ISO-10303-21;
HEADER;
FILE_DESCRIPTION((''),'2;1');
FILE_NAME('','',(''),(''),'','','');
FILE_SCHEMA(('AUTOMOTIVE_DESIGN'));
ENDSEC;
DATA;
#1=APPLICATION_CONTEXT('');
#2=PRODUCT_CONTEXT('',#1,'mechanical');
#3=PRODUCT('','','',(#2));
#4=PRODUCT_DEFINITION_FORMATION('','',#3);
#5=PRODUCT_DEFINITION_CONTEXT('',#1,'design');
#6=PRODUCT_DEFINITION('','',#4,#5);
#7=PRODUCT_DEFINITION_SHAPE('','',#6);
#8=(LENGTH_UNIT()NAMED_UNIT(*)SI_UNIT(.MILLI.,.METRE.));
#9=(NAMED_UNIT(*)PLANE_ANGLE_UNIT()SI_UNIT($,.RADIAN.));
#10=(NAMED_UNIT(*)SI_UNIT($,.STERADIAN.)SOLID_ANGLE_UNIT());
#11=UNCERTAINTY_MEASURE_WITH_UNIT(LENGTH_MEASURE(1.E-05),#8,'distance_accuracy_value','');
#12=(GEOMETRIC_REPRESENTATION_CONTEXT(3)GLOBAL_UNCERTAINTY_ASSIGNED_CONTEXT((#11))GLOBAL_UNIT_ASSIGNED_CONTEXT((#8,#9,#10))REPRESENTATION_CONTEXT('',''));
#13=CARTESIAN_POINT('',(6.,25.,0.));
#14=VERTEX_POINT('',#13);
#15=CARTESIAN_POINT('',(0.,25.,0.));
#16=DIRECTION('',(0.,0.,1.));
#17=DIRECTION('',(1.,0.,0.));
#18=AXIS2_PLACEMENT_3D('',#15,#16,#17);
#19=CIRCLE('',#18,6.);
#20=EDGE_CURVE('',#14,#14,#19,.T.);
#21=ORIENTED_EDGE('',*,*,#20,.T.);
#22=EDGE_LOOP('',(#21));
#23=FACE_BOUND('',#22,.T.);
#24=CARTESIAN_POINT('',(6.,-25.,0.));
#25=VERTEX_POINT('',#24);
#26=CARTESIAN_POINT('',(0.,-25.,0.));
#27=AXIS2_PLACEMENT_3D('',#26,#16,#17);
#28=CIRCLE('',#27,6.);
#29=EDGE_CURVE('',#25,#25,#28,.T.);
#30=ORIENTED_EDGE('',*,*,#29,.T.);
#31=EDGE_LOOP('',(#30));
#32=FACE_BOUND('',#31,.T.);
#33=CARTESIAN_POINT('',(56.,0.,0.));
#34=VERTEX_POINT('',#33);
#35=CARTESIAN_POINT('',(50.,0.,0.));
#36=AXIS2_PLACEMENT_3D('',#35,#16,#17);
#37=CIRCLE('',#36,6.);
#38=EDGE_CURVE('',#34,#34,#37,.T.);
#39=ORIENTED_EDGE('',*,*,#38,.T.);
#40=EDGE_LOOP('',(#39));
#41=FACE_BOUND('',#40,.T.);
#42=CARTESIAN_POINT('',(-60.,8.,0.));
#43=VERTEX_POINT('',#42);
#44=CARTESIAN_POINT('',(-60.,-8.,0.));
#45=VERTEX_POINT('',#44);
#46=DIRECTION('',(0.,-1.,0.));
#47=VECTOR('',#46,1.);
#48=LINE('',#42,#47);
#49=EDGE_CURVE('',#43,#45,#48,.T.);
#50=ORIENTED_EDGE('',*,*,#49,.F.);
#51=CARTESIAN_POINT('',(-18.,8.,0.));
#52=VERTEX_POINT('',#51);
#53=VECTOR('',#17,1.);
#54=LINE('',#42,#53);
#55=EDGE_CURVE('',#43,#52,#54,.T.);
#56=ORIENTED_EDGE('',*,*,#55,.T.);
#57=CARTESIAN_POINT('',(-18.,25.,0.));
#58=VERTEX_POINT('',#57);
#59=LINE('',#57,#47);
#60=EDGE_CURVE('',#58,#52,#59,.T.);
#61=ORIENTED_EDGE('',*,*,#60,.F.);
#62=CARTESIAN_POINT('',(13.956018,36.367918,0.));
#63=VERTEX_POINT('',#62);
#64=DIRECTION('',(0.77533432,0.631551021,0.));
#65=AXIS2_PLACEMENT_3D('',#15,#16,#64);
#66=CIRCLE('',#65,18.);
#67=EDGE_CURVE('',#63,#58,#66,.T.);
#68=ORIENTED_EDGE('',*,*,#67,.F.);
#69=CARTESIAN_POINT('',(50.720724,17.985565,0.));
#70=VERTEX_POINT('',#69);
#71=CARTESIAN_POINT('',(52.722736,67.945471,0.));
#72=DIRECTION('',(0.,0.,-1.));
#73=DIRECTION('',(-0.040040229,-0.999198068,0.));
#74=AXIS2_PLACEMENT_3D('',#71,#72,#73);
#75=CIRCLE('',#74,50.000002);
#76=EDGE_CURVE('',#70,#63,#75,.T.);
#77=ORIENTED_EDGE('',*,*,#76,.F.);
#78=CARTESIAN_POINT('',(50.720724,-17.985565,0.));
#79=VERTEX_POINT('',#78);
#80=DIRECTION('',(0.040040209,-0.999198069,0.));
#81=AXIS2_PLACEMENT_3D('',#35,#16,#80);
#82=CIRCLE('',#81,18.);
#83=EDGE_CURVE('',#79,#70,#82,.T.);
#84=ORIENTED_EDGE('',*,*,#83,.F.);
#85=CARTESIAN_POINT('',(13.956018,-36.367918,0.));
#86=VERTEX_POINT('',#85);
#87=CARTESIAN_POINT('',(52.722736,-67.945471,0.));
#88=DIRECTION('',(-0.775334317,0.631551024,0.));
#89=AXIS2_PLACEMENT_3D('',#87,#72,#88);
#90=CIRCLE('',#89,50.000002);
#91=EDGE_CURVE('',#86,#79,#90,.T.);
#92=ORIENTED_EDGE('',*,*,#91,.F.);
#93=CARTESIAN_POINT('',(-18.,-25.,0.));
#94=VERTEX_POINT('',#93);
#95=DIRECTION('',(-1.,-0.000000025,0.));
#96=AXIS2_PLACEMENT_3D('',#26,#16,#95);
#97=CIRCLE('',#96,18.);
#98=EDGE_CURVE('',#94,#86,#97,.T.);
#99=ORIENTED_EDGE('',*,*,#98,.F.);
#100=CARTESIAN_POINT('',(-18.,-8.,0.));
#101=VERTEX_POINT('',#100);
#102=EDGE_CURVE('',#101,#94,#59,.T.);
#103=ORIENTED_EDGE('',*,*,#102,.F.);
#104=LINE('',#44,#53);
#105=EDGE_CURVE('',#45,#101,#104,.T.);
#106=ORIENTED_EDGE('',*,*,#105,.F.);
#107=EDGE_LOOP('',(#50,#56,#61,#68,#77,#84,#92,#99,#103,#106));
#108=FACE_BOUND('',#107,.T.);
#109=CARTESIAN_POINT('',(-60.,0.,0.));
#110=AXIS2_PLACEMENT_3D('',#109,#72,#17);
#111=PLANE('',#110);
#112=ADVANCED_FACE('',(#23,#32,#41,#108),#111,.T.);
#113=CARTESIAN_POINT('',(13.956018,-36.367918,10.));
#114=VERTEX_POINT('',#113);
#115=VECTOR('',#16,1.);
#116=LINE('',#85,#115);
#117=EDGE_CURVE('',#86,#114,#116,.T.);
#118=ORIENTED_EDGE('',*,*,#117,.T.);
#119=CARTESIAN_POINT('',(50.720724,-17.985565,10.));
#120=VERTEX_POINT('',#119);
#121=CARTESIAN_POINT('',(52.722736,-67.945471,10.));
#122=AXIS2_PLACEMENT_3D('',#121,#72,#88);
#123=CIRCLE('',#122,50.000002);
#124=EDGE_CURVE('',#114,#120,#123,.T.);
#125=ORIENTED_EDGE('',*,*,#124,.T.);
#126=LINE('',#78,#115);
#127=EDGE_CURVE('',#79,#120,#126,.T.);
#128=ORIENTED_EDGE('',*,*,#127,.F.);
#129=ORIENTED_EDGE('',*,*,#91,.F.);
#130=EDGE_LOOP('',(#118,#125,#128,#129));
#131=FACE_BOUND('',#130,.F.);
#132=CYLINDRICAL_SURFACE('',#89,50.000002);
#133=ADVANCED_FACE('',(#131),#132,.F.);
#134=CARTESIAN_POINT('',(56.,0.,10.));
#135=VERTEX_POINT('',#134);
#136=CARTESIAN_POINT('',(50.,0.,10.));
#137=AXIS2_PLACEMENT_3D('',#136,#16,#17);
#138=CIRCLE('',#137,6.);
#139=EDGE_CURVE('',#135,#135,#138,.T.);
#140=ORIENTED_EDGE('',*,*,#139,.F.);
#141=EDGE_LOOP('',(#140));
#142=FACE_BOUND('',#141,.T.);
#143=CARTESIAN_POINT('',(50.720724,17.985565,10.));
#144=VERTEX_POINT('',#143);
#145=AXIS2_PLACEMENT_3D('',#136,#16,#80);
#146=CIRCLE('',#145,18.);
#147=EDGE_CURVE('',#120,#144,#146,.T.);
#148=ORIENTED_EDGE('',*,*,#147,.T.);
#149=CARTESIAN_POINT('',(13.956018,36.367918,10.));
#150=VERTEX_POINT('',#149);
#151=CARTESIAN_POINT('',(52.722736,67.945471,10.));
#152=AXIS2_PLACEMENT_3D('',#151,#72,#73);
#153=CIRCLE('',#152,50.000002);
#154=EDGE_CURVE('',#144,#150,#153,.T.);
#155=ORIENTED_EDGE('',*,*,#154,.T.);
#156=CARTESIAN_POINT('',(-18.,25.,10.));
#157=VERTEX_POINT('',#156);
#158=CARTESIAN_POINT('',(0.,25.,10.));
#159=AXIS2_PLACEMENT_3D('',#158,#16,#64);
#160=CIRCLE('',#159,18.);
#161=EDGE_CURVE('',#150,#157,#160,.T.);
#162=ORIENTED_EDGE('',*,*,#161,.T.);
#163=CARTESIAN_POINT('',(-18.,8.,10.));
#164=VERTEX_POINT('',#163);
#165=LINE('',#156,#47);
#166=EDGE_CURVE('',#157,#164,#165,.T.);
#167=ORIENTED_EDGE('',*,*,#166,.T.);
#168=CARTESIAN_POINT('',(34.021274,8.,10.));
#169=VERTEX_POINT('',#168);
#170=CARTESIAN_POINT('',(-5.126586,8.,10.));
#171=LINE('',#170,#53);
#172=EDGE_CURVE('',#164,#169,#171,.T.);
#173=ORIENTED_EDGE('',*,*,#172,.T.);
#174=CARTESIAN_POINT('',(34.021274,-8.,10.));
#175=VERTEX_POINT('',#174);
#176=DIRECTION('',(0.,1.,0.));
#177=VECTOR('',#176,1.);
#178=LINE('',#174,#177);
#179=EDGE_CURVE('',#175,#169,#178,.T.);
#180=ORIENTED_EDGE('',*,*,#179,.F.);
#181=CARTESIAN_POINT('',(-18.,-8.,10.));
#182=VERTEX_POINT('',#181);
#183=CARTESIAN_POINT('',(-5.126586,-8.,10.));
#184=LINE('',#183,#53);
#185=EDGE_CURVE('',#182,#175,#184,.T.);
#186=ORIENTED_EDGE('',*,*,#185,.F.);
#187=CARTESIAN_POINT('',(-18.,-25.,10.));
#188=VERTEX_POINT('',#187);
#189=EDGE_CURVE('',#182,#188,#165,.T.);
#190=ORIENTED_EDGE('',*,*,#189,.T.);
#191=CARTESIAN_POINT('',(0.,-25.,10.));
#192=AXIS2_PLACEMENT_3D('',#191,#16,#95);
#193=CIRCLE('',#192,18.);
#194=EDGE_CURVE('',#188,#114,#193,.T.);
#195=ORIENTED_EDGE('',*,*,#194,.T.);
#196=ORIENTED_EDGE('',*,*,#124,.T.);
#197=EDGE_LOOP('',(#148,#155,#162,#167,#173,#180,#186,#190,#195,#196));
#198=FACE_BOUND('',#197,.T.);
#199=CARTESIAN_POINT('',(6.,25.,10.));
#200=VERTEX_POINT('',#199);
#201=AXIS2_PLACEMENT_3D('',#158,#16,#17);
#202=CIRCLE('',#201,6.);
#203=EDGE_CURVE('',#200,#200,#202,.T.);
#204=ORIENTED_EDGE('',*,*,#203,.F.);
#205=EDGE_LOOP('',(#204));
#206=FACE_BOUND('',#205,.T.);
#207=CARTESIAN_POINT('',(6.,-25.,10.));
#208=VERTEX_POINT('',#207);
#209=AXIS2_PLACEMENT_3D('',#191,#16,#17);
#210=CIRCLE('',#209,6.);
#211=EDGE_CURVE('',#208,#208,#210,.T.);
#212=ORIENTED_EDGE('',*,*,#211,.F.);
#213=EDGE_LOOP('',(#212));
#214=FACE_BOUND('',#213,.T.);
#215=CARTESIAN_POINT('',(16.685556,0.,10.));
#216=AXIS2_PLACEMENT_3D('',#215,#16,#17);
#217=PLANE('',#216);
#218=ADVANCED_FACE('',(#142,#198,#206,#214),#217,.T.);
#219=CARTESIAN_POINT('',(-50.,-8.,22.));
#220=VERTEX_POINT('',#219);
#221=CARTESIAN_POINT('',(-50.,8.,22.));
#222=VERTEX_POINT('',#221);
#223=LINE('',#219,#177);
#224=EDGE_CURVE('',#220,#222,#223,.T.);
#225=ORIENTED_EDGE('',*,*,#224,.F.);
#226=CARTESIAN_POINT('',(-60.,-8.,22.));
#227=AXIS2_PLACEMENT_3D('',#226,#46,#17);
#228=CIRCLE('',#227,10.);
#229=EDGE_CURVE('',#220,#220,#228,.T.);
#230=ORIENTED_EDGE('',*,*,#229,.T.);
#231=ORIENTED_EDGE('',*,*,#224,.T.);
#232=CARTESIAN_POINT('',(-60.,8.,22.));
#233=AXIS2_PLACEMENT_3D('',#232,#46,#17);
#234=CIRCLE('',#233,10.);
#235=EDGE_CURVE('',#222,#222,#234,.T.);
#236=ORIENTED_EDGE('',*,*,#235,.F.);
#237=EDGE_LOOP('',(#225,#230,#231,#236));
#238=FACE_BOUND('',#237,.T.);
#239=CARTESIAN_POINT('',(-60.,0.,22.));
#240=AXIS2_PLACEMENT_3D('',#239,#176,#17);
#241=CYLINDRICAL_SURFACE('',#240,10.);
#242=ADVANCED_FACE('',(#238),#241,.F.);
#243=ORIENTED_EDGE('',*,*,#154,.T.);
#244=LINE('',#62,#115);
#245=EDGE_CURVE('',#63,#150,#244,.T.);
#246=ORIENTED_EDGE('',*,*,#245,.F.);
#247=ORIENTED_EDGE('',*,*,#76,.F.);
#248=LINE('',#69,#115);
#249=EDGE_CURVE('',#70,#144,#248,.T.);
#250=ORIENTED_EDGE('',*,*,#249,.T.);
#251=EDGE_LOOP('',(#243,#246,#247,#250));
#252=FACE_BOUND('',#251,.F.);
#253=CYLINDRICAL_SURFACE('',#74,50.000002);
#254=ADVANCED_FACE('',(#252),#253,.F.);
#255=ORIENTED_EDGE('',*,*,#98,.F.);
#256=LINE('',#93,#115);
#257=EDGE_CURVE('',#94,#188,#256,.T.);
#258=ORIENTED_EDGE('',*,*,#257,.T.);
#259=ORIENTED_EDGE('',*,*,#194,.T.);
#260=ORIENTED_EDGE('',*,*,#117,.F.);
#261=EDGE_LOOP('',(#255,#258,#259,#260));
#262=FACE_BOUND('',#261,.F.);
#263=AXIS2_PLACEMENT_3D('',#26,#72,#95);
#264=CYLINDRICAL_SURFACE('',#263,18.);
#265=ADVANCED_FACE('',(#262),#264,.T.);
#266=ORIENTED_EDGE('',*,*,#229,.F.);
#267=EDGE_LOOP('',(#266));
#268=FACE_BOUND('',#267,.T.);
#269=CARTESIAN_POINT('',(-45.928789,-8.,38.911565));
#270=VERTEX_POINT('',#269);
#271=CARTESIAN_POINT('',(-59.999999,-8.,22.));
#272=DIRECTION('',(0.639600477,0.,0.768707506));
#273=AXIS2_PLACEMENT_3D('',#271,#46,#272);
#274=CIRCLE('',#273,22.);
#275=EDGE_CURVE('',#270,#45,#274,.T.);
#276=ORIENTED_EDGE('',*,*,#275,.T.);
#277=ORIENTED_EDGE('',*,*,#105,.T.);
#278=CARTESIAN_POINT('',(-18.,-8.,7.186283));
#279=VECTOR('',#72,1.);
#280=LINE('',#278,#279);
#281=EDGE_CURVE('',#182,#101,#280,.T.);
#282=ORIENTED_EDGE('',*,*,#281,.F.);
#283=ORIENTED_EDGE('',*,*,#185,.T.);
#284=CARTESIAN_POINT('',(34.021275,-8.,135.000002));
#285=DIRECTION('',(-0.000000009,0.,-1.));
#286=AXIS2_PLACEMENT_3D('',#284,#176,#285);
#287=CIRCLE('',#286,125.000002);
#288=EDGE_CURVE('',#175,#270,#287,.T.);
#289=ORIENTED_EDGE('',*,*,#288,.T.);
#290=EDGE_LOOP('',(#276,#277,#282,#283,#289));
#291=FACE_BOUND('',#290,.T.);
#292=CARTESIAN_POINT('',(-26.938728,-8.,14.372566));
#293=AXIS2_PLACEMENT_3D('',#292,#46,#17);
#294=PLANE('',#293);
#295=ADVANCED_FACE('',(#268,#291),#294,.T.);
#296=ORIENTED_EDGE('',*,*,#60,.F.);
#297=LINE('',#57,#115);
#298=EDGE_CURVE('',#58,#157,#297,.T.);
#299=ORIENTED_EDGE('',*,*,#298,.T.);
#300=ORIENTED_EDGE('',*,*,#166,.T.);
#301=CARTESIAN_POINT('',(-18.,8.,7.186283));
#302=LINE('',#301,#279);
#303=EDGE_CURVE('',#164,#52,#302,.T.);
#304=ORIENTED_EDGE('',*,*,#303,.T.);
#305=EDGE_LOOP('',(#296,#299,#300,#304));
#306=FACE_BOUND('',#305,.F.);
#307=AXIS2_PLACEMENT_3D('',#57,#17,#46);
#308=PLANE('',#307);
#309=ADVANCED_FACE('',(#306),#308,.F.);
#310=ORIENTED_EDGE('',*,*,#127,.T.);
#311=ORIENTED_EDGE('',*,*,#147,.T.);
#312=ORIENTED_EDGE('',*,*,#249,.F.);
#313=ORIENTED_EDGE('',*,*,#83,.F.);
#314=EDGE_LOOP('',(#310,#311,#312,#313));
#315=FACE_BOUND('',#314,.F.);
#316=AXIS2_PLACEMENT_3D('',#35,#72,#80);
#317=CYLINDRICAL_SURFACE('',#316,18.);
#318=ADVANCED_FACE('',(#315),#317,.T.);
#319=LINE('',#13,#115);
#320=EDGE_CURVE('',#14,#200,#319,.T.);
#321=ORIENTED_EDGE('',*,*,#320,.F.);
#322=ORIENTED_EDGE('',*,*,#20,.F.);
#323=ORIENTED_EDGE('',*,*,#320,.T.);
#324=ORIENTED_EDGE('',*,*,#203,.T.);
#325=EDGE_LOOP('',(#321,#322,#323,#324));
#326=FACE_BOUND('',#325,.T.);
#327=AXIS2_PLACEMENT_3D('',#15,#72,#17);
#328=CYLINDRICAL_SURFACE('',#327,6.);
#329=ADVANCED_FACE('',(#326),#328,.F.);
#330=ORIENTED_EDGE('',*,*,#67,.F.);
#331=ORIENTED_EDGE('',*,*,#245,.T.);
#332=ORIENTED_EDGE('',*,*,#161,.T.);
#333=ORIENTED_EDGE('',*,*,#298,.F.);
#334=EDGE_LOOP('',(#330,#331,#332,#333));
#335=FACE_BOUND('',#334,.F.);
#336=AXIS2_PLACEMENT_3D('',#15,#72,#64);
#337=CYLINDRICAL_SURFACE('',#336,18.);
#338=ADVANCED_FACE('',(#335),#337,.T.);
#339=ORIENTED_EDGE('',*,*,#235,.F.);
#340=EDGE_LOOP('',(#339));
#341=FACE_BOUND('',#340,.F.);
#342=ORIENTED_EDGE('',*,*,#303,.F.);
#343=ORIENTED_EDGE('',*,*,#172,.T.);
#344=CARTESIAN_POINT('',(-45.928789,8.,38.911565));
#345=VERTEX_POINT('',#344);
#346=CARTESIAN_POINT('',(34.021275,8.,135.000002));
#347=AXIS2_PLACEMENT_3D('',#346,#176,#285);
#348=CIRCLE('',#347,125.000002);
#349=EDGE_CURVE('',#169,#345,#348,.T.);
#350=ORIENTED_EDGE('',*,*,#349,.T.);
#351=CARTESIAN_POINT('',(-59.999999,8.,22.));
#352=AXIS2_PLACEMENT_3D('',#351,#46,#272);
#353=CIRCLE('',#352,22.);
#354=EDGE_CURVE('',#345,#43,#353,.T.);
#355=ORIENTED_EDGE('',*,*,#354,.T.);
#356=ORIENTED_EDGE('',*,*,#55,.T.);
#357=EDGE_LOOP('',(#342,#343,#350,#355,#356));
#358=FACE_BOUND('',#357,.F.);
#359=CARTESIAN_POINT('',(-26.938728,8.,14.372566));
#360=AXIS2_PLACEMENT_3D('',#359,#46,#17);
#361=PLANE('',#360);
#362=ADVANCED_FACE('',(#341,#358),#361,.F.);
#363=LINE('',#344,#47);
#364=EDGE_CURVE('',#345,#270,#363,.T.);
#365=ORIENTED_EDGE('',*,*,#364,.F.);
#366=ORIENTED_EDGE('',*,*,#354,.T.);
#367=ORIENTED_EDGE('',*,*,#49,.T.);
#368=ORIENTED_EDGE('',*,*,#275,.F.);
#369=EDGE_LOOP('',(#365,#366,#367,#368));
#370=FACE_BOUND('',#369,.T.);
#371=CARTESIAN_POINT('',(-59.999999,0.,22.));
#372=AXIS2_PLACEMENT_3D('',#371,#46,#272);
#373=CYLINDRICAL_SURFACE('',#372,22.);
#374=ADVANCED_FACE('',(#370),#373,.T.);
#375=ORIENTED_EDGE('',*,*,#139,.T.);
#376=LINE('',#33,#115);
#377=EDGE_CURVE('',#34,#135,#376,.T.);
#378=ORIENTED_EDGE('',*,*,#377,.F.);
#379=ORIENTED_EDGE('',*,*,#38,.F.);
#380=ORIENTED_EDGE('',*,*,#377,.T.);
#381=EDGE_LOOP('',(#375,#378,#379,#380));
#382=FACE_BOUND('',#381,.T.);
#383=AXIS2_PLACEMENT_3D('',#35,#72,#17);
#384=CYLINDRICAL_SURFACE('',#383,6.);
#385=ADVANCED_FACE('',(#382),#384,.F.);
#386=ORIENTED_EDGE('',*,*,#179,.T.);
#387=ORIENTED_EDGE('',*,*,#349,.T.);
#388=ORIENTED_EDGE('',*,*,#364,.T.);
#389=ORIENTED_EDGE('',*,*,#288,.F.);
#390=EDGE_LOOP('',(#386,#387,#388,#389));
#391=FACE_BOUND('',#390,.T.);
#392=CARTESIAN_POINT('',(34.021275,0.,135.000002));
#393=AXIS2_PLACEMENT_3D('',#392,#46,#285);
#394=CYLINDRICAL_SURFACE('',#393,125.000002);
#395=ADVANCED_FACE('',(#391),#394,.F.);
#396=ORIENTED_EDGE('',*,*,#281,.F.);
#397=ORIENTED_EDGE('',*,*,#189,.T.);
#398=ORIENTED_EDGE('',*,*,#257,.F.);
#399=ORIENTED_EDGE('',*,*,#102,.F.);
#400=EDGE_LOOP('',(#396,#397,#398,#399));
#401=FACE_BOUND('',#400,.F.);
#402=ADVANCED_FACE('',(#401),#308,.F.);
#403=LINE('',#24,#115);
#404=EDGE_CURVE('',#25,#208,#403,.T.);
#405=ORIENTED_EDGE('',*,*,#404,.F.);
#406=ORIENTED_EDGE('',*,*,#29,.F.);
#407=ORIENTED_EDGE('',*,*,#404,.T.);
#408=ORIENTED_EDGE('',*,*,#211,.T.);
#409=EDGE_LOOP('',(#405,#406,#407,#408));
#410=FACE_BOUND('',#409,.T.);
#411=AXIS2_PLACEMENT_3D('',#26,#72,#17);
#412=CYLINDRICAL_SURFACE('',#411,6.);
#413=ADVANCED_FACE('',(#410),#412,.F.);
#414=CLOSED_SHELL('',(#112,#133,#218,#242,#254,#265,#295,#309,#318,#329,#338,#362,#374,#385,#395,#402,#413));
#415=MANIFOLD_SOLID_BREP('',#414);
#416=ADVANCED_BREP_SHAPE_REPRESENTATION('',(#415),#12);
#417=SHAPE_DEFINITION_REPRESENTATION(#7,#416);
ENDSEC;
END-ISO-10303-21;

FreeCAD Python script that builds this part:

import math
import FreeCAD as App
import Part
import Sketcher

doc = App.newDocument("Part")
body = doc.addObject("PartDesign::Body", "Body")

# Sketch on XY plane
sketch1 = body.newObject("Sketcher::SketchObject", "Sketch")
sketch1.AttachmentSupport = (doc.getObject("XY_Plane"), [""])
sketch1.MapMode = "FlatFace"
sketch1.addGeometry([
    Part.ArcOfCircle(Part.Circle(App.Vector(53, 68, 0), App.Vector(0, 0, 1), 50), math.radians(-141), math.radians(-92)),  # 0
    Part.ArcOfCircle(Part.Circle(App.Vector(0, 25, 0), App.Vector(0, 0, 1), 18), math.radians(39), math.radians(180)),  # 1
    Part.LineSegment(App.Vector(-18, 25, 0), App.Vector(-18, -25, 0)),  # 2
    Part.ArcOfCircle(Part.Circle(App.Vector(0, -25, 0), App.Vector(0, 0, 1), 18), math.radians(-180), math.radians(-39)),  # 3
    Part.ArcOfCircle(Part.Circle(App.Vector(53, -68, 0), App.Vector(0, 0, 1), 50), math.radians(92), math.radians(141)),  # 4
    Part.ArcOfCircle(Part.Circle(App.Vector(50, 0, 0), App.Vector(0, 0, 1), 18), math.radians(-88), math.radians(88)),  # 5
    Part.Circle(App.Vector(0, -25, 0), App.Vector(0, 0, 1), 6),  # 6
    Part.Circle(App.Vector(0, 25, 0), App.Vector(0, 0, 1), 6),  # 7
    Part.Circle(App.Vector(50, 0, 0), App.Vector(0, 0, 1), 6),  # 8
], False)
sketch1.addConstraint([
    Sketcher.Constraint("Tangent", 0, 1, 1, 1),
    Sketcher.Constraint("Tangent", 1, 2, 2, 1),
    Sketcher.Constraint("Tangent", 2, 2, 3, 1),
    Sketcher.Constraint("Tangent", 3, 2, 4, 2),
    Sketcher.Constraint("Tangent", 4, 1, 5, 1),
    Sketcher.Constraint("Tangent", 5, 2, 0, 2),
    Sketcher.Constraint("Vertical", 2),
    Sketcher.Constraint("Coincident", 6, 3, 3, 3),
    Sketcher.Constraint("Coincident", 7, 3, 1, 3),
    Sketcher.Constraint("Coincident", 8, 3, 5, 3),
    Sketcher.Constraint("Equal", 1, 3),
    Sketcher.Constraint("Equal", 0, 4),
    Sketcher.Constraint("Equal", 3, 5),
    Sketcher.Constraint("Equal", 6, 7),
    Sketcher.Constraint("Equal", 7, 8),
    Sketcher.Constraint("Symmetric", 1, 3, 3, 3, -1, 1),
    Sketcher.Constraint("PointOnObject", 5, 3, -1),
    Sketcher.Constraint("Diameter", 6, 12.0),
    Sketcher.Constraint("Radius", 1, 18.0),
    Sketcher.Constraint("DistanceY", 2, 2, 2, 1, 50.0),
    Sketcher.Constraint("DistanceX", -1, 1, 5, 3, 50.0),
    Sketcher.Constraint("Radius", 0, 50.000002),
])
pad1 = body.newObject("PartDesign::Pad", "Pad")
pad1.Profile = sketch1
pad1.Length = 10

# Sketch on XZ plane
sketch2 = body.newObject("Sketcher::SketchObject", "Sketch001")
sketch2.AttachmentSupport = (doc.getObject("XZ_Plane"), [""])
sketch2.MapMode = "FlatFace"
sketch2.addGeometry([
    Part.ArcOfCircle(Part.Circle(App.Vector(34, 135, 0), App.Vector(0, 0, 1), 125), math.radians(-130), math.radians(-90)),  # 0
    Part.ArcOfCircle(Part.Circle(App.Vector(-60, 22, 0), App.Vector(0, 0, 1), 22), math.radians(50), math.radians(270)),  # 1
    Part.LineSegment(App.Vector(-60, 0, 0), App.Vector(27, 0, 0)),  # 2
    Part.LineSegment(App.Vector(27, 0, 0), App.Vector(34, 10, 0)),  # 3
    Part.Circle(App.Vector(-60, 22, 0), App.Vector(0, 0, 1), 10),  # 4
], False)
sketch2.addConstraint([
    Sketcher.Constraint("Tangent", 0, 1, 1, 1),
    Sketcher.Constraint("Tangent", 1, 2, 2, 1),
    Sketcher.Constraint("Coincident", 2, 2, 3, 1),
    Sketcher.Constraint("Coincident", 3, 2, 0, 2),
    Sketcher.Constraint("Horizontal", 2),
    Sketcher.Constraint("Coincident", 4, 3, 1, 3),
    Sketcher.Constraint("PointOnObject", 1, 2, -1),
    Sketcher.Constraint("Vertical", 0, 3, 3, 2),
    Sketcher.Constraint("Diameter", 4, 20.0),
    Sketcher.Constraint("Radius", 0, 125.000002),
    Sketcher.Constraint("Radius", 1, 22.0),
    Sketcher.Constraint("DistanceY", -1, 1, 0, 3, 135.000002),
    Sketcher.Constraint("DistanceX", 1, 3, -1, 1, 59.999999),
    Sketcher.Constraint("DistanceX", 2, 2, 0, 3, 7.2473),
])
pad2 = body.newObject("PartDesign::Pad", "Pad001")
pad2.Profile = sketch2
pad2.Length = 16
pad2.Midplane = True

doc.recompute()
